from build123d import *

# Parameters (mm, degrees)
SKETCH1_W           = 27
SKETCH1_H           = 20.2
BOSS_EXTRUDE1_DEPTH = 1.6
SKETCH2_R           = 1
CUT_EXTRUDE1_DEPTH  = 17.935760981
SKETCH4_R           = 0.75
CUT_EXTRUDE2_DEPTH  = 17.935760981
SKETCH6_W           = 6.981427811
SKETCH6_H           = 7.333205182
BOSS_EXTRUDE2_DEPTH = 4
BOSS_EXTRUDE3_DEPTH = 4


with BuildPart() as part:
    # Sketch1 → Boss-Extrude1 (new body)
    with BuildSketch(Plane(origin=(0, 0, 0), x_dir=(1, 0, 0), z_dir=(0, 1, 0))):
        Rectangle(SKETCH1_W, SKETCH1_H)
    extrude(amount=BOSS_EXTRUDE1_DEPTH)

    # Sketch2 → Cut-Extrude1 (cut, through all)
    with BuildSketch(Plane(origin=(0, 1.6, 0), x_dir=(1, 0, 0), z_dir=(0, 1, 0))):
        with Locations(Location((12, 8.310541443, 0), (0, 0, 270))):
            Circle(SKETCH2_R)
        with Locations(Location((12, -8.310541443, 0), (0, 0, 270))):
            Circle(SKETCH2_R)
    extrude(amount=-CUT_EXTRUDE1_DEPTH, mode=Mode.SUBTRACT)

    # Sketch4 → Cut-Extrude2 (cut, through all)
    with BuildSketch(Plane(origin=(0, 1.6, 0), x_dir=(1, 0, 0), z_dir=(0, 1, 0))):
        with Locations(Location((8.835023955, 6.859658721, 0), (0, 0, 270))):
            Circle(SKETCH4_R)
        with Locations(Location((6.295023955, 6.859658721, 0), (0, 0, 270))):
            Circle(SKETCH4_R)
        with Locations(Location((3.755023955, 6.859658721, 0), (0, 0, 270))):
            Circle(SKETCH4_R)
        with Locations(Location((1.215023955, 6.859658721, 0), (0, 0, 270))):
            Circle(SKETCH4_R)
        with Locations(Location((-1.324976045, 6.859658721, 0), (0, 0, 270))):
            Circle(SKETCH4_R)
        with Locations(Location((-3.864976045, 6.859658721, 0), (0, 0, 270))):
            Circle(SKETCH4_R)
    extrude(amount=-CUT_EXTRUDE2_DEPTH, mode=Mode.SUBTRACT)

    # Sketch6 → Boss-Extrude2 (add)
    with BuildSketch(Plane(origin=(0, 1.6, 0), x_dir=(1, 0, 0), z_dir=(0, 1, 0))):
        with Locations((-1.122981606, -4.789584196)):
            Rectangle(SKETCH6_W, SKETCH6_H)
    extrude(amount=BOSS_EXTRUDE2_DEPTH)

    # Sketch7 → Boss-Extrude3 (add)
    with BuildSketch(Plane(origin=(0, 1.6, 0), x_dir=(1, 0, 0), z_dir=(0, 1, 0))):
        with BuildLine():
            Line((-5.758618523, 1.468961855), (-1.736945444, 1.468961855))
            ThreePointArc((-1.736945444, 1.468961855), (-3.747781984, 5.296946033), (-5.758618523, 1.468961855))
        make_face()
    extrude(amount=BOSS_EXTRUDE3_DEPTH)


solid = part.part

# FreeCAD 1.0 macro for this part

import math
import FreeCAD as App
import Part
import Sketcher

V = App.Vector


def add_polygon(sketch, points):
    """Adds a closed chain of lines whose ends are joined by coincident constraints."""
    first, n = sketch.GeometryCount, len(points)
    for a, b in zip(points, points[1:] + points[:1]):
        sketch.addGeometry(Part.LineSegment(App.Vector(*a, 0), App.Vector(*b, 0)), False)
    for i in range(n):
        sketch.addConstraint(Sketcher.Constraint("Coincident", first + i, 2, first + (i + 1) % n, 1))

doc = App.newDocument("Part")
params = doc.addObject("Spreadsheet::Sheet", "Params")
for row, (alias, value) in enumerate([
    ("sketch1_width", "27 mm"),
    ("sketch1_height", "20.2 mm"),
    ("pad1_length", "1.6 mm"),
    ("sketch2_diameter", "2 mm"),
    ("sketch3_diameter", "1.5 mm"),
    ("pad2_length", "4 mm"),
    ("pad3_length", "4 mm"),
], start=1):
    params.set(f"A{row}", alias)
    params.set(f"B{row}", "=" + value)
    params.setAlias(f"B{row}", alias)

body = doc.addObject("PartDesign::Body", "Body")

# Sketch on XZ plane
sketch1 = body.newObject("Sketcher::SketchObject", "Sketch")
sketch1.AttachmentSupport = (doc.getObject("XZ_Plane"), [""])
sketch1.MapMode = "FlatFace"
add_polygon(sketch1, [(-14, -10), (-14, 10), (14, 10), (14, -10)])  # lines 0-3
sketch1.addConstraint(Sketcher.Constraint("Vertical", 0))
sketch1.addConstraint(Sketcher.Constraint("Horizontal", 1))
sketch1.addConstraint(Sketcher.Constraint("Vertical", 2))
sketch1.addConstraint(Sketcher.Constraint("Horizontal", 3))
sketch1.addConstraint(Sketcher.Constraint("Symmetric", 0, 2, 2, 2, -1, 1))
sketch1.addConstraint(Sketcher.Constraint("DistanceX", 1, 1, 1, 2, 27.0))
sketch1.addConstraint(Sketcher.Constraint("DistanceY", 0, 1, 0, 2, 20.2))
sketch1.setExpression("Constraints[9]", "Params.sketch1_width")
sketch1.setExpression("Constraints[10]", "Params.sketch1_height")
pad1 = body.newObject("PartDesign::Pad", "Pad")
pad1.Profile = sketch1
pad1.setExpression("Length", "Params.pad1_length")
pad1.Reversed = True

# Sketch on XZ plane
sketch2 = body.newObject("Sketcher::SketchObject", "Sketch001")
sketch2.AttachmentSupport = (doc.getObject("XZ_Plane"), [""])
sketch2.MapMode = "FlatFace"
sketch2.AttachmentOffset = App.Placement(V(0, 0, -1.6), App.Rotation())
sketch2.addGeometry(Part.Circle(V(12, -8.3, 0), V(0, 0, 1), 1), False)
sketch2.addGeometry(Part.Circle(V(12, 8.3, 0), V(0, 0, 1), 1), False)
sketch2.addConstraint(Sketcher.Constraint("Equal", 0, 1))
sketch2.addConstraint(Sketcher.Constraint("Symmetric", 0, 3, 1, 3, -1))
sketch2.addConstraint(Sketcher.Constraint("Diameter", 0, 2.0))
sketch2.addConstraint(Sketcher.Constraint("DistanceX", -1, 1, 0, 3, 12.0))
sketch2.addConstraint(Sketcher.Constraint("DistanceY", 0, 3, -1, 1, 8.310541))
sketch2.setExpression("Constraints[2]", "Params.sketch2_diameter")
pocket1 = body.newObject("PartDesign::Pocket", "Pocket")
pocket1.Profile = sketch2
pocket1.Type = "ThroughAll"
pocket1.Reversed = True

# Sketch on XZ plane
sketch3 = body.newObject("Sketcher::SketchObject", "Sketch002")
sketch3.AttachmentSupport = (doc.getObject("XZ_Plane"), [""])
sketch3.MapMode = "FlatFace"
sketch3.AttachmentOffset = App.Placement(V(0, 0, -1.6), App.Rotation())
sketch3.addGeometry(Part.Circle(V(8.8, -6.9, 0), V(0, 0, 1), 0.8), False)
sketch3.addGeometry(Part.Circle(V(6.3, -6.9, 0), V(0, 0, 1), 0.8), False)
sketch3.addGeometry(Part.Circle(V(3.8, -6.9, 0), V(0, 0, 1), 0.8), False)
sketch3.addGeometry(Part.Circle(V(1.2, -6.9, 0), V(0, 0, 1), 0.8), False)
sketch3.addGeometry(Part.Circle(V(-1.3, -6.9, 0), V(0, 0, 1), 0.8), False)
sketch3.addGeometry(Part.Circle(V(-3.9, -6.9, 0), V(0, 0, 1), 0.8), False)
sketch3.addConstraint(Sketcher.Constraint("Equal", 0, 1))
sketch3.addConstraint(Sketcher.Constraint("Equal", 1, 2))
sketch3.addConstraint(Sketcher.Constraint("Equal", 2, 3))
sketch3.addConstraint(Sketcher.Constraint("Equal", 3, 4))
sketch3.addConstraint(Sketcher.Constraint("Equal", 4, 5))
sketch3.addConstraint(Sketcher.Constraint("Horizontal", 0, 3, 1, 3))
sketch3.addConstraint(Sketcher.Constraint("Horizontal", 1, 3, 2, 3))
sketch3.addConstraint(Sketcher.Constraint("Horizontal", 2, 3, 3, 3))
sketch3.addConstraint(Sketcher.Constraint("Horizontal", 3, 3, 4, 3))
sketch3.addConstraint(Sketcher.Constraint("Horizontal", 4, 3, 5, 3))
sketch3.addConstraint(Sketcher.Constraint("Diameter", 0, 1.5))
sketch3.addConstraint(Sketcher.Constraint("DistanceX", 5, 3, 0, 3, 12.7))
sketch3.addConstraint(Sketcher.Constraint("DistanceX", 1, 3, 0, 3, 2.54))
sketch3.addConstraint(Sketcher.Constraint("DistanceX", 2, 3, 1, 3, 2.54))
sketch3.addConstraint(Sketcher.Constraint("DistanceX", 3, 3, 2, 3, 2.54))
sketch3.addConstraint(Sketcher.Constraint("DistanceX", 4, 3, 3, 3, 2.54))
sketch3.addConstraint(Sketcher.Constraint("DistanceY", 0, 3, -1, 1, 6.859659))
sketch3.addConstraint(Sketcher.Constraint("DistanceX", -1, 1, 0, 3, 8.835024))
sketch3.setExpression("Constraints[10]", "Params.sketch3_diameter")
pocket2 = body.newObject("PartDesign::Pocket", "Pocket001")
pocket2.Profile = sketch3
pocket2.Type = "ThroughAll"
pocket2.Reversed = True

# Sketch on XZ plane
sketch4 = body.newObject("Sketcher::SketchObject", "Sketch003")
sketch4.AttachmentSupport = (doc.getObject("XZ_Plane"), [""])
sketch4.MapMode = "FlatFace"
sketch4.AttachmentOffset = App.Placement(V(0, 0, -1.6), App.Rotation())
add_polygon(sketch4, [(-5, 1), (-5, 8), (2, 8), (2, 1)])  # lines 0-3
sketch4.addConstraint(Sketcher.Constraint("Vertical", 0))
sketch4.addConstraint(Sketcher.Constraint("Horizontal", 1))
sketch4.addConstraint(Sketcher.Constraint("Vertical", 2))
sketch4.addConstraint(Sketcher.Constraint("Horizontal", 3))
sketch4.addConstraint(Sketcher.Constraint("DistanceX", 1, 1, 1, 2, 6.981428))
sketch4.addConstraint(Sketcher.Constraint("DistanceY", 0, 1, 0, 2, 7.333205))
sketch4.addConstraint(Sketcher.Constraint("DistanceY", -1, 1, 2, 2, 1.122982))
sketch4.addConstraint(Sketcher.Constraint("DistanceX", 0, 2, -1, 1, 4.613696))
pad2 = body.newObject("PartDesign::Pad", "Pad001")
pad2.Profile = sketch4
pad2.setExpression("Length", "Params.pad2_length")
pad2.Reversed = True

# Sketch on XZ plane
sketch5 = body.newObject("Sketcher::SketchObject", "Sketch004")
sketch5.AttachmentSupport = (doc.getObject("XZ_Plane"), [""])
sketch5.MapMode = "FlatFace"
sketch5.AttachmentOffset = App.Placement(V(0, 0, -1.6), App.Rotation())
sketch5.addGeometry(Part.LineSegment(V(-5.8, -1.5, 0), V(-1.7, -1.5, 0)), False)
sketch5.addGeometry(Part.ArcOfCircle(Part.Circle(V(-3.7, -2.9, 0), V(0, 0, 1), 2.4), math.radians(145), math.radians(395)), False)
sketch5.addConstraint(Sketcher.Constraint("Coincident", 0, 1, 1, 1))
sketch5.addConstraint(Sketcher.Constraint("Coincident", 1, 2, 0, 2))
sketch5.addConstraint(Sketcher.Constraint("Horizontal", 0))
sketch5.addConstraint(Sketcher.Constraint("Radius", 1, 2.442137))
sketch5.addConstraint(Sketcher.Constraint("DistanceX", 0, 1, 0, 2, 4.021673))
sketch5.addConstraint(Sketcher.Constraint("DistanceX", 1, 3, -1, 1, 3.747782))
sketch5.addConstraint(Sketcher.Constraint("DistanceY", 1, 3, -1, 1, 2.854809))
pad3 = body.newObject("PartDesign::Pad", "Pad002")
pad3.Profile = sketch5
pad3.setExpression("Length", "Params.pad3_length")
pad3.Reversed = True

doc.recompute()
